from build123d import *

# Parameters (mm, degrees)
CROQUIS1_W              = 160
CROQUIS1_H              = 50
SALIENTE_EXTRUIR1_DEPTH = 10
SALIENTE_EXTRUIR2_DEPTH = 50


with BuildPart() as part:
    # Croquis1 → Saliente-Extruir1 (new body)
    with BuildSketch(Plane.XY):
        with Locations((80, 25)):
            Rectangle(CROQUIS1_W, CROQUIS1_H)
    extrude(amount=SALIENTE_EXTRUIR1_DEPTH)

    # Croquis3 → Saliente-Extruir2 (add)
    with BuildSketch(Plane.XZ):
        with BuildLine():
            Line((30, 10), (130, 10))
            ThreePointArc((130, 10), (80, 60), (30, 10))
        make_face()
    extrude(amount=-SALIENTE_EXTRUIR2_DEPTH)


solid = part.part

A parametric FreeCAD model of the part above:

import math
import FreeCAD as App
import Part
import Sketcher
Q = App.Units.Quantity

doc = App.newDocument("Part")
body = doc.addObject("PartDesign::Body", "Body")

# Sketch on XY plane
sketch1 = body.newObject("Sketcher::SketchObject", "Sketch")
sketch1.AttachmentSupport = (doc.getObject("XY_Plane"), [""])
sketch1.MapMode = "FlatFace"
sketch1.addGeometry([
    Part.LineSegment(App.Vector(0, 50, 0), App.Vector(0, 0, 0)),
    Part.LineSegment(App.Vector(0, 0, 0), App.Vector(160, 0, 0)),
    Part.LineSegment(App.Vector(160, 0, 0), App.Vector(160, 50, 0)),
    Part.LineSegment(App.Vector(160, 50, 0), App.Vector(0, 50, 0)),
], False)
sketch1.addConstraint([
    Sketcher.Constraint("Coincident", 0, 2, 1, 1),
    Sketcher.Constraint("Coincident", 1, 2, 2, 1),
    Sketcher.Constraint("Coincident", 2, 2, 3, 1),
    Sketcher.Constraint("Coincident", 3, 2, 0, 1),
    Sketcher.Constraint("Vertical", 0),
    Sketcher.Constraint("Horizontal", 1),
    Sketcher.Constraint("Vertical", 2),
    Sketcher.Constraint("Horizontal", 3),
    Sketcher.Constraint("Coincident", 0, 2, -1, 1),
    Sketcher.Constraint("DistanceX", 1, 1, 1, 2, Q("160 mm")),
    Sketcher.Constraint("DistanceY", 0, 2, 0, 1, Q("50 mm")),
])
pad1 = body.newObject("PartDesign::Pad", "Pad")
pad1.Profile = sketch1
pad1.Length = 10

# Sketch on XZ plane
sketch2 = body.newObject("Sketcher::SketchObject", "Sketch001")
sketch2.AttachmentSupport = (doc.getObject("XZ_Plane"), [""])
sketch2.MapMode = "FlatFace"
sketch2.addGeometry([
    Part.LineSegment(App.Vector(30, 10, 0), App.Vector(130, 10, 0)),
    Part.ArcOfCircle(Part.Circle(App.Vector(80, 10, 0), App.Vector(0, 0, 1), 50), math.radians(0), math.radians(180)),
], False)
sketch2.addConstraint([
    Sketcher.Constraint("Coincident", 0, 1, 1, 2),
    Sketcher.Constraint("Coincident", 1, 1, 0, 2),
    Sketcher.Constraint("Horizontal", 0),
    Sketcher.Constraint("Horizontal", 1, 3, 0, 1),
    Sketcher.Constraint("Radius", 1, Q("50 mm")),
    Sketcher.Constraint("DistanceX", -1, 1, 1, 3, Q("80 mm")),
    Sketcher.Constraint("DistanceY", -1, 1, 1, 3, Q("10 mm")),
])
pad2 = body.newObject("PartDesign::Pad", "Pad001")
pad2.Profile = sketch2
pad2.Length = 50
pad2.Reversed = True

doc.recompute()
